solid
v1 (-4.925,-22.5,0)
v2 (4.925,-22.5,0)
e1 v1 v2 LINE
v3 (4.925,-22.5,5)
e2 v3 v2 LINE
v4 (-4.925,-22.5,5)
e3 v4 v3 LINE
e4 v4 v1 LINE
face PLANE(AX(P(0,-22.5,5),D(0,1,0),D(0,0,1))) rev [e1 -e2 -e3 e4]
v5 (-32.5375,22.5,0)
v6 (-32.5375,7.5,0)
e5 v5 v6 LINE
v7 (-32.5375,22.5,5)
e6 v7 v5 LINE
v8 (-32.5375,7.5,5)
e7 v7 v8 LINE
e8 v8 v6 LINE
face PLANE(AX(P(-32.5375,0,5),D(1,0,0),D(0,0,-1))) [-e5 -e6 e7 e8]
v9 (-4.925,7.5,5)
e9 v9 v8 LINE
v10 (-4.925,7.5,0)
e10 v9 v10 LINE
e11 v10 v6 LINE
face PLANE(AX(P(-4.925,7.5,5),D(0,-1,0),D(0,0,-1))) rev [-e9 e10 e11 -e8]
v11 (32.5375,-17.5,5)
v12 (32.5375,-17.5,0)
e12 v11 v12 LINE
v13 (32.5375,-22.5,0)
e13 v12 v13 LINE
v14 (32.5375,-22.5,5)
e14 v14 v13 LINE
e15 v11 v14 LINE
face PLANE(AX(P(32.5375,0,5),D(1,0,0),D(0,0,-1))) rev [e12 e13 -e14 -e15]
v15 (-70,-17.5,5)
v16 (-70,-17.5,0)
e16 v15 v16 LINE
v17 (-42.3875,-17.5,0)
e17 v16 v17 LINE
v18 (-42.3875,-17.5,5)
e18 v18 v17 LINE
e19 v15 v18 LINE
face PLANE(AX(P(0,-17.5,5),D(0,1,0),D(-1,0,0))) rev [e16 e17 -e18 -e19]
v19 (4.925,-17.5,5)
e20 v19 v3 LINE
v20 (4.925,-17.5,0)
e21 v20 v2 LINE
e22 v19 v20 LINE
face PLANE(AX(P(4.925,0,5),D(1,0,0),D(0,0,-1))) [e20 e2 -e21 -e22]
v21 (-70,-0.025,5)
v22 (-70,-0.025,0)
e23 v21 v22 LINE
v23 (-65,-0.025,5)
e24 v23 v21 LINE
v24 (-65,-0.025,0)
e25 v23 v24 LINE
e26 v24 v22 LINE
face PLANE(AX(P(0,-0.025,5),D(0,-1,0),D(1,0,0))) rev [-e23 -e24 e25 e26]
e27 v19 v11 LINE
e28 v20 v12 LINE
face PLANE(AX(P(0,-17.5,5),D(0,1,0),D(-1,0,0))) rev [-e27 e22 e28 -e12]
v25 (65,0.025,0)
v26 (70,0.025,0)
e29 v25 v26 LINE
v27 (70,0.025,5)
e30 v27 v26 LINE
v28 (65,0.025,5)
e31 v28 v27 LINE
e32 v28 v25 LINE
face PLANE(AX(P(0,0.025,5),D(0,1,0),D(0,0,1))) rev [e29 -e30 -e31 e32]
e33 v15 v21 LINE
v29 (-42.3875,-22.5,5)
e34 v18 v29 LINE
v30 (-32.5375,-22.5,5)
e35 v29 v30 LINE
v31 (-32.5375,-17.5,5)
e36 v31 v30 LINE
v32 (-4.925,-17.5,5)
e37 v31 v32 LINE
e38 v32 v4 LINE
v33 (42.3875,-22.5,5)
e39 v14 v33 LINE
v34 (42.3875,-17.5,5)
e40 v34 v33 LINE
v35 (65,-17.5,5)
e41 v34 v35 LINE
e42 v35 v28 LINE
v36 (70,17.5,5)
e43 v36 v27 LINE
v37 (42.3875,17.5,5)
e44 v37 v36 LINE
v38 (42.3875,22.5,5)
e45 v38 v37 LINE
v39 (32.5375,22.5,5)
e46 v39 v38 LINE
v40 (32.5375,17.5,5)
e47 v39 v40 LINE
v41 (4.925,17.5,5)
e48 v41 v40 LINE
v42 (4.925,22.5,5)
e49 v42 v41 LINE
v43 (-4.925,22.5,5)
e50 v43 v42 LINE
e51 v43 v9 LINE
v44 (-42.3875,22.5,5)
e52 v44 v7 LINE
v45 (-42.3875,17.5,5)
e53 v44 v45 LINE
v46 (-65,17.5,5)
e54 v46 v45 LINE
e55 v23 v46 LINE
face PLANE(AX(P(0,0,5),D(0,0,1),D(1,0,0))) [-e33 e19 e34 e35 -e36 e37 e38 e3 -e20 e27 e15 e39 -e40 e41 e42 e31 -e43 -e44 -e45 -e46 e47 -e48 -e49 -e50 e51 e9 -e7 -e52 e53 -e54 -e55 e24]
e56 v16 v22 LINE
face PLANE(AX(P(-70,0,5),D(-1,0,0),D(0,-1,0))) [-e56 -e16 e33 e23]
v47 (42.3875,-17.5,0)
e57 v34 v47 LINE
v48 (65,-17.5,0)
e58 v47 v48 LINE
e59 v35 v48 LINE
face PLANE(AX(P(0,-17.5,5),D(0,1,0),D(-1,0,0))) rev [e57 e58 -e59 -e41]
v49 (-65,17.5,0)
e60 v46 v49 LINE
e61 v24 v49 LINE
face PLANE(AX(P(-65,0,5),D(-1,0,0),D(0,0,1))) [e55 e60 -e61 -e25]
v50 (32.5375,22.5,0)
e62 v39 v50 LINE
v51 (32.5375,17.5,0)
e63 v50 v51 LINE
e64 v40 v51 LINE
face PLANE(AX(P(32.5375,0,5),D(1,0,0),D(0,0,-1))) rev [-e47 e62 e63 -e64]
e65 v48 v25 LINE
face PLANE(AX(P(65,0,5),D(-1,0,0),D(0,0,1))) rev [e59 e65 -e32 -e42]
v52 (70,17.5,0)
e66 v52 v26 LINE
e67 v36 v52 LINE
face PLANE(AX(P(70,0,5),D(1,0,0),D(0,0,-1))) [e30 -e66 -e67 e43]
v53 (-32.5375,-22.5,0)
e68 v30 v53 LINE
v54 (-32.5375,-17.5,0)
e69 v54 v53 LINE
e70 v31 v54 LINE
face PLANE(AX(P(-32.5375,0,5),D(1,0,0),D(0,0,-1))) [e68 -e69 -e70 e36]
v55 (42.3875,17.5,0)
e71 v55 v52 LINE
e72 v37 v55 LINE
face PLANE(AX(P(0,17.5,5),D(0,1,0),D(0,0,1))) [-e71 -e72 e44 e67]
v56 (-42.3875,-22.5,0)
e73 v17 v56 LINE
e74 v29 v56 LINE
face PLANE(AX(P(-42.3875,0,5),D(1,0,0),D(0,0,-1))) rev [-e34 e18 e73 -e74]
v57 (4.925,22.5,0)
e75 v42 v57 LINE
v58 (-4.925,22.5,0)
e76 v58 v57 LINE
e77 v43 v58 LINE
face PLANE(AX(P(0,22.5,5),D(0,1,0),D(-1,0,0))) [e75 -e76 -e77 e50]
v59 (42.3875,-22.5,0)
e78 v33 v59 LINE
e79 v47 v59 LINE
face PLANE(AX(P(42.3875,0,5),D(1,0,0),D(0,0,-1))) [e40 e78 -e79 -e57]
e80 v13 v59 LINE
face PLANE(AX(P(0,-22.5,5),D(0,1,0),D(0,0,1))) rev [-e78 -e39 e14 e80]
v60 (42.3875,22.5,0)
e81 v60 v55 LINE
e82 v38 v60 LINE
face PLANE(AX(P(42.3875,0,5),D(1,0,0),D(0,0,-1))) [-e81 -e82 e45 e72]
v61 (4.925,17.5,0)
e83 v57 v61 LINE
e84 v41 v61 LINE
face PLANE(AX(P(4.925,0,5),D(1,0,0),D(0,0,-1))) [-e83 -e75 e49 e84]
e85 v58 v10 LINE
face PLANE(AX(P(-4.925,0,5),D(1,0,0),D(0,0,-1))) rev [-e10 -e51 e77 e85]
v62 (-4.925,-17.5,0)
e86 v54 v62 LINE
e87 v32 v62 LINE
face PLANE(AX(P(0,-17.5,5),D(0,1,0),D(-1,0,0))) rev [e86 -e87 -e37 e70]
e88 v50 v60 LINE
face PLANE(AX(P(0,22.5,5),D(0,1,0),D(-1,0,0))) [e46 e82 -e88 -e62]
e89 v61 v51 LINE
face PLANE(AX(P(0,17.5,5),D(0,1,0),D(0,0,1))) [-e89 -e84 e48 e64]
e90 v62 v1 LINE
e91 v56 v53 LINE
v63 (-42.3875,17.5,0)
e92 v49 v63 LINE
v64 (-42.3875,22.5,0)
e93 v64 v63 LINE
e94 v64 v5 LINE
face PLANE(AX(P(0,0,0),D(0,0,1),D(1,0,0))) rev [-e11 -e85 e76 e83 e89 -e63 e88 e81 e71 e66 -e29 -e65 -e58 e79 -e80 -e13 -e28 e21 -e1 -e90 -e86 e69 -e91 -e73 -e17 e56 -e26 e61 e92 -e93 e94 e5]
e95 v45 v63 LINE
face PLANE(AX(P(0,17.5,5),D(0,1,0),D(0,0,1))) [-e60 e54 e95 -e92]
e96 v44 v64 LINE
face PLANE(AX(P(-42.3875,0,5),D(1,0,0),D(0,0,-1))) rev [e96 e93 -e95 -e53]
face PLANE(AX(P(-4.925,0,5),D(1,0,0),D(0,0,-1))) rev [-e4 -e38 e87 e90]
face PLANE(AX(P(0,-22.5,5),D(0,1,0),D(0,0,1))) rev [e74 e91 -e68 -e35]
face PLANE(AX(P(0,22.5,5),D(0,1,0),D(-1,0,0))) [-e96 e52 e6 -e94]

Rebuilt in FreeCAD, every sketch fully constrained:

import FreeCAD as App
import Part
import Sketcher

V = App.Vector

doc = App.newDocument("Part")
params = doc.addObject("Spreadsheet::Sheet", "Params")
for row, (alias, value) in enumerate([
    ("sketch1_width", "5 mm"),
    ("sketch1_width2", "9.85 mm"),
    ("pad1_length", "5 mm"),
    ("sketch2_height", "10 mm"),
], start=1):
    params.set(f"A{row}", alias)
    params.set(f"B{row}", "=" + value)
    params.setAlias(f"B{row}", alias)

body = doc.addObject("PartDesign::Body", "Body")

# Sketch on XY plane
sketch1 = doc.addObject("Sketcher::SketchObject", "Sketch")
body.addObject(sketch1)
sketch1.AttachmentSupport = (doc.XY_Plane, [""])
sketch1.MapMode = "FlatFace"
sketch1.addGeometry([
    Part.LineSegment(V(-65, 17.5, 0), V(-65, -0.025, 0)),  # 0
    Part.LineSegment(V(-65, -0.025, 0), V(-70, -0.025, 0)),  # 1
    Part.LineSegment(V(-70, -0.025, 0), V(-70, -17.5, 0)),  # 2
    Part.LineSegment(V(-70, -17.5, 0), V(-42.3875, -17.5, 0)),  # 3
    Part.LineSegment(V(-42.3875, -17.5, 0), V(-42.3875, -22.5, 0)),  # 4
    Part.LineSegment(V(-42.3875, -22.5, 0), V(-32.5375, -22.5, 0)),  # 5
    Part.LineSegment(V(-32.5375, -22.5, 0), V(-32.5375, -17.5, 0)),  # 6
    Part.LineSegment(V(-32.5375, -17.5, 0), V(-4.925, -17.5, 0)),  # 7
    Part.LineSegment(V(-4.925, -17.5, 0), V(-4.925, -22.5, 0)),  # 8
    Part.LineSegment(V(-4.925, -22.5, 0), V(4.925, -22.5, 0)),  # 9
    Part.LineSegment(V(4.925, -22.5, 0), V(4.925, -17.5, 0)),  # 10
    Part.LineSegment(V(4.925, -17.5, 0), V(32.5375, -17.5, 0)),  # 11
    Part.LineSegment(V(32.5375, -17.5, 0), V(32.5375, -22.5, 0)),  # 12
    Part.LineSegment(V(32.5375, -22.5, 0), V(42.3875, -22.5, 0)),  # 13
    Part.LineSegment(V(42.3875, -22.5, 0), V(42.3875, -17.5, 0)),  # 14
    Part.LineSegment(V(42.3875, -17.5, 0), V(65, -17.5, 0)),  # 15
    Part.LineSegment(V(65, -17.5, 0), V(65, 0.025, 0)),  # 16
    Part.LineSegment(V(65, 0.025, 0), V(70, 0.025, 0)),  # 17
    Part.LineSegment(V(70, 0.025, 0), V(70, 17.5, 0)),  # 18
    Part.LineSegment(V(70, 17.5, 0), V(42.3875, 17.5, 0)),  # 19
    Part.LineSegment(V(42.3875, 17.5, 0), V(42.3875, 22.5, 0)),  # 20
    Part.LineSegment(V(42.3875, 22.5, 0), V(32.5375, 22.5, 0)),  # 21
    Part.LineSegment(V(32.5375, 22.5, 0), V(32.5375, 17.5, 0)),  # 22
    Part.LineSegment(V(32.5375, 17.5, 0), V(4.925, 17.5, 0)),  # 23
    Part.LineSegment(V(4.925, 17.5, 0), V(4.925, 22.5, 0)),  # 24
    Part.LineSegment(V(4.925, 22.5, 0), V(-4.925, 22.5, 0)),  # 25
    Part.LineSegment(V(-4.925, 22.5, 0), V(-4.925, 17.5, 0)),  # 26
    Part.LineSegment(V(-4.925, 17.5, 0), V(-32.5375, 17.5, 0)),  # 27
    Part.LineSegment(V(-32.5375, 17.5, 0), V(-32.5375, 22.5, 0)),  # 28
    Part.LineSegment(V(-32.5375, 22.5, 0), V(-42.3875, 22.5, 0)),  # 29
    Part.LineSegment(V(-42.3875, 22.5, 0), V(-42.3875, 17.5, 0)),  # 30
    Part.LineSegment(V(-42.3875, 17.5, 0), V(-65, 17.5, 0)),  # 31
], False)
sketch1.addConstraint([
    Sketcher.Constraint("Coincident", 0, 2, 1, 1),
    Sketcher.Constraint("Coincident", 1, 2, 2, 1),
    Sketcher.Constraint("Coincident", 2, 2, 3, 1),
    Sketcher.Constraint("Coincident", 3, 2, 4, 1),
    Sketcher.Constraint("Coincident", 4, 2, 5, 1),
    Sketcher.Constraint("Coincident", 5, 2, 6, 1),
    Sketcher.Constraint("Coincident", 6, 2, 7, 1),
    Sketcher.Constraint("Coincident", 7, 2, 8, 1),
    Sketcher.Constraint("Coincident", 8, 2, 9, 1),
    Sketcher.Constraint("Coincident", 9, 2, 10, 1),
    Sketcher.Constraint("Coincident", 10, 2, 11, 1),
    Sketcher.Constraint("Coincident", 11, 2, 12, 1),
    Sketcher.Constraint("Coincident", 12, 2, 13, 1),
    Sketcher.Constraint("Coincident", 13, 2, 14, 1),
    Sketcher.Constraint("Coincident", 14, 2, 15, 1),
    Sketcher.Constraint("Coincident", 15, 2, 16, 1),
    Sketcher.Constraint("Coincident", 16, 2, 17, 1),
    Sketcher.Constraint("Coincident", 17, 2, 18, 1),
    Sketcher.Constraint("Coincident", 18, 2, 19, 1),
    Sketcher.Constraint("Coincident", 19, 2, 20, 1),
    Sketcher.Constraint("Coincident", 20, 2, 21, 1),
    Sketcher.Constraint("Coincident", 21, 2, 22, 1),
    Sketcher.Constraint("Coincident", 22, 2, 23, 1),
    Sketcher.Constraint("Coincident", 23, 2, 24, 1),
    Sketcher.Constraint("Coincident", 24, 2, 25, 1),
    Sketcher.Constraint("Coincident", 25, 2, 26, 1),
    Sketcher.Constraint("Coincident", 26, 2, 27, 1),
    Sketcher.Constraint("Coincident", 27, 2, 28, 1),
    Sketcher.Constraint("Coincident", 28, 2, 29, 1),
    Sketcher.Constraint("Coincident", 29, 2, 30, 1),
    Sketcher.Constraint("Coincident", 30, 2, 31, 1),
    Sketcher.Constraint("Coincident", 31, 2, 0, 1),
    Sketcher.Constraint("Vertical", 0),
    Sketcher.Constraint("Horizontal", 1),
    Sketcher.Constraint("Vertical", 2),
    Sketcher.Constraint("Horizontal", 3),
    Sketcher.Constraint("Vertical", 4),
    Sketcher.Constraint("Horizontal", 5),
    Sketcher.Constraint("Vertical", 6),
    Sketcher.Constraint("Horizontal", 7),
    Sketcher.Constraint("Vertical", 8),
    Sketcher.Constraint("Horizontal", 9),
    Sketcher.Constraint("Vertical", 10),
    Sketcher.Constraint("Horizontal", 11),
    Sketcher.Constraint("Vertical", 12),
    Sketcher.Constraint("Horizontal", 13),
    Sketcher.Constraint("Vertical", 14),
    Sketcher.Constraint("Horizontal", 15),
    Sketcher.Constraint("Vertical", 16),
    Sketcher.Constraint("Horizontal", 17),
    Sketcher.Constraint("Vertical", 18),
    Sketcher.Constraint("Horizontal", 19),
    Sketcher.Constraint("Vertical", 20),
    Sketcher.Constraint("Horizontal", 21),
    Sketcher.Constraint("Vertical", 22),
    Sketcher.Constraint("Horizontal", 23),
    Sketcher.Constraint("Vertical", 24),
    Sketcher.Constraint("Horizontal", 25),
    Sketcher.Constraint("Vertical", 26),
    Sketcher.Constraint("Horizontal", 27),
    Sketcher.Constraint("Vertical", 28),
    Sketcher.Constraint("Horizontal", 29),
    Sketcher.Constraint("Vertical", 30),
    Sketcher.Constraint("Horizontal", 31),
    Sketcher.Constraint("Symmetric", 0, 2, 16, 2, -1, 1),
    Sketcher.Constraint("Symmetric", 2, 2, 18, 2, -1, 1),
    Sketcher.Constraint("Symmetric", 4, 2, 20, 2, -1, 1),
    Sketcher.Constraint("Symmetric", 6, 2, 22, 2, -1, 1),
    Sketcher.Constraint("Symmetric", 8, 2, 24, 2, -1, 1),
    Sketcher.Constraint("Symmetric", 10, 2, 26, 2, -1, 1),
    Sketcher.Constraint("Symmetric", 12, 2, 28, 2, -1, 1),
    Sketcher.Constraint("Symmetric", 14, 2, 30, 2, -1, 1),
    Sketcher.Constraint("Symmetric", 7, 2, 10, 2, -2),
    Sketcher.Constraint("Symmetric", 5, 2, 12, 2, -2),
    Sketcher.Constraint("Symmetric", 3, 2, 14, 2, -2),
    Sketcher.Constraint("Horizontal", 3, 2, 6, 2),
    Sketcher.Constraint("Horizontal", 5, 2, 8, 2),
    Sketcher.Constraint("Equal", 3, 7),
    Sketcher.Constraint("Equal", 5, 9),
    Sketcher.Constraint("Equal", 17, 4),
    Sketcher.Constraint("DistanceX", 1, 2, 1, 1, 5.0),
    Sketcher.Constraint("DistanceX", 0, 2, -1, 1, 65.0),
    Sketcher.Constraint("DistanceY", 15, 2, 18, 2, 35.0),
    Sketcher.Constraint("DistanceX", 5, 1, 5, 2, 9.85),
    Sketcher.Constraint("DistanceY", 0, 2, 0, 1, 17.525),
])
sketch1.setExpression("Constraints[80]", "Params.sketch1_width")
sketch1.setExpression("Constraints[83]", "Params.sketch1_width2")
pad1 = doc.addObject("PartDesign::Pad", "Pad")
body.addObject(pad1)
pad1.Profile = sketch1
pad1.setExpression("Length", "Params.pad1_length")

# Sketch on XY plane
sketch2 = doc.addObject("Sketcher::SketchObject", "Sketch001")
body.addObject(sketch2)
sketch2.AttachmentSupport = (doc.XY_Plane, [""])
sketch2.MapMode = "FlatFace"
sketch2.addGeometry([
    Part.LineSegment(V(-4.925, 17.5, 0), V(-4.925, 7.5, 0)),
    Part.LineSegment(V(-4.925, 7.5, 0), V(-32.5375, 7.5, 0)),
    Part.LineSegment(V(-32.5375, 7.5, 0), V(-32.5375, 17.5, 0)),
    Part.LineSegment(V(-32.5375, 17.5, 0), V(-4.925, 17.5, 0)),
], False)
sketch2.addConstraint([
    Sketcher.Constraint("Coincident", 0, 2, 1, 1),
    Sketcher.Constraint("Coincident", 1, 2, 2, 1),
    Sketcher.Constraint("Coincident", 2, 2, 3, 1),
    Sketcher.Constraint("Coincident", 3, 2, 0, 1),
    Sketcher.Constraint("Vertical", 0),
    Sketcher.Constraint("Horizontal", 1),
    Sketcher.Constraint("Vertical", 2),
    Sketcher.Constraint("Horizontal", 3),
    Sketcher.Constraint("DistanceY", 0, 2, 0, 1, 10.0),
    Sketcher.Constraint("DistanceY", -1, 1, 0, 2, 7.5),
    Sketcher.Constraint("DistanceX", 1, 2, 1, 1, 27.6125),
    Sketcher.Constraint("DistanceX", 0, 2, -1, 1, 4.925),
])
sketch2.setExpression("Constraints[8]", "Params.sketch2_height")
pocket1 = doc.addObject("PartDesign::Pocket", "Pocket")
body.addObject(pocket1)
pocket1.Profile = sketch2
pocket1.Type = "ThroughAll"
pocket1.Reversed = True

doc.recompute()
